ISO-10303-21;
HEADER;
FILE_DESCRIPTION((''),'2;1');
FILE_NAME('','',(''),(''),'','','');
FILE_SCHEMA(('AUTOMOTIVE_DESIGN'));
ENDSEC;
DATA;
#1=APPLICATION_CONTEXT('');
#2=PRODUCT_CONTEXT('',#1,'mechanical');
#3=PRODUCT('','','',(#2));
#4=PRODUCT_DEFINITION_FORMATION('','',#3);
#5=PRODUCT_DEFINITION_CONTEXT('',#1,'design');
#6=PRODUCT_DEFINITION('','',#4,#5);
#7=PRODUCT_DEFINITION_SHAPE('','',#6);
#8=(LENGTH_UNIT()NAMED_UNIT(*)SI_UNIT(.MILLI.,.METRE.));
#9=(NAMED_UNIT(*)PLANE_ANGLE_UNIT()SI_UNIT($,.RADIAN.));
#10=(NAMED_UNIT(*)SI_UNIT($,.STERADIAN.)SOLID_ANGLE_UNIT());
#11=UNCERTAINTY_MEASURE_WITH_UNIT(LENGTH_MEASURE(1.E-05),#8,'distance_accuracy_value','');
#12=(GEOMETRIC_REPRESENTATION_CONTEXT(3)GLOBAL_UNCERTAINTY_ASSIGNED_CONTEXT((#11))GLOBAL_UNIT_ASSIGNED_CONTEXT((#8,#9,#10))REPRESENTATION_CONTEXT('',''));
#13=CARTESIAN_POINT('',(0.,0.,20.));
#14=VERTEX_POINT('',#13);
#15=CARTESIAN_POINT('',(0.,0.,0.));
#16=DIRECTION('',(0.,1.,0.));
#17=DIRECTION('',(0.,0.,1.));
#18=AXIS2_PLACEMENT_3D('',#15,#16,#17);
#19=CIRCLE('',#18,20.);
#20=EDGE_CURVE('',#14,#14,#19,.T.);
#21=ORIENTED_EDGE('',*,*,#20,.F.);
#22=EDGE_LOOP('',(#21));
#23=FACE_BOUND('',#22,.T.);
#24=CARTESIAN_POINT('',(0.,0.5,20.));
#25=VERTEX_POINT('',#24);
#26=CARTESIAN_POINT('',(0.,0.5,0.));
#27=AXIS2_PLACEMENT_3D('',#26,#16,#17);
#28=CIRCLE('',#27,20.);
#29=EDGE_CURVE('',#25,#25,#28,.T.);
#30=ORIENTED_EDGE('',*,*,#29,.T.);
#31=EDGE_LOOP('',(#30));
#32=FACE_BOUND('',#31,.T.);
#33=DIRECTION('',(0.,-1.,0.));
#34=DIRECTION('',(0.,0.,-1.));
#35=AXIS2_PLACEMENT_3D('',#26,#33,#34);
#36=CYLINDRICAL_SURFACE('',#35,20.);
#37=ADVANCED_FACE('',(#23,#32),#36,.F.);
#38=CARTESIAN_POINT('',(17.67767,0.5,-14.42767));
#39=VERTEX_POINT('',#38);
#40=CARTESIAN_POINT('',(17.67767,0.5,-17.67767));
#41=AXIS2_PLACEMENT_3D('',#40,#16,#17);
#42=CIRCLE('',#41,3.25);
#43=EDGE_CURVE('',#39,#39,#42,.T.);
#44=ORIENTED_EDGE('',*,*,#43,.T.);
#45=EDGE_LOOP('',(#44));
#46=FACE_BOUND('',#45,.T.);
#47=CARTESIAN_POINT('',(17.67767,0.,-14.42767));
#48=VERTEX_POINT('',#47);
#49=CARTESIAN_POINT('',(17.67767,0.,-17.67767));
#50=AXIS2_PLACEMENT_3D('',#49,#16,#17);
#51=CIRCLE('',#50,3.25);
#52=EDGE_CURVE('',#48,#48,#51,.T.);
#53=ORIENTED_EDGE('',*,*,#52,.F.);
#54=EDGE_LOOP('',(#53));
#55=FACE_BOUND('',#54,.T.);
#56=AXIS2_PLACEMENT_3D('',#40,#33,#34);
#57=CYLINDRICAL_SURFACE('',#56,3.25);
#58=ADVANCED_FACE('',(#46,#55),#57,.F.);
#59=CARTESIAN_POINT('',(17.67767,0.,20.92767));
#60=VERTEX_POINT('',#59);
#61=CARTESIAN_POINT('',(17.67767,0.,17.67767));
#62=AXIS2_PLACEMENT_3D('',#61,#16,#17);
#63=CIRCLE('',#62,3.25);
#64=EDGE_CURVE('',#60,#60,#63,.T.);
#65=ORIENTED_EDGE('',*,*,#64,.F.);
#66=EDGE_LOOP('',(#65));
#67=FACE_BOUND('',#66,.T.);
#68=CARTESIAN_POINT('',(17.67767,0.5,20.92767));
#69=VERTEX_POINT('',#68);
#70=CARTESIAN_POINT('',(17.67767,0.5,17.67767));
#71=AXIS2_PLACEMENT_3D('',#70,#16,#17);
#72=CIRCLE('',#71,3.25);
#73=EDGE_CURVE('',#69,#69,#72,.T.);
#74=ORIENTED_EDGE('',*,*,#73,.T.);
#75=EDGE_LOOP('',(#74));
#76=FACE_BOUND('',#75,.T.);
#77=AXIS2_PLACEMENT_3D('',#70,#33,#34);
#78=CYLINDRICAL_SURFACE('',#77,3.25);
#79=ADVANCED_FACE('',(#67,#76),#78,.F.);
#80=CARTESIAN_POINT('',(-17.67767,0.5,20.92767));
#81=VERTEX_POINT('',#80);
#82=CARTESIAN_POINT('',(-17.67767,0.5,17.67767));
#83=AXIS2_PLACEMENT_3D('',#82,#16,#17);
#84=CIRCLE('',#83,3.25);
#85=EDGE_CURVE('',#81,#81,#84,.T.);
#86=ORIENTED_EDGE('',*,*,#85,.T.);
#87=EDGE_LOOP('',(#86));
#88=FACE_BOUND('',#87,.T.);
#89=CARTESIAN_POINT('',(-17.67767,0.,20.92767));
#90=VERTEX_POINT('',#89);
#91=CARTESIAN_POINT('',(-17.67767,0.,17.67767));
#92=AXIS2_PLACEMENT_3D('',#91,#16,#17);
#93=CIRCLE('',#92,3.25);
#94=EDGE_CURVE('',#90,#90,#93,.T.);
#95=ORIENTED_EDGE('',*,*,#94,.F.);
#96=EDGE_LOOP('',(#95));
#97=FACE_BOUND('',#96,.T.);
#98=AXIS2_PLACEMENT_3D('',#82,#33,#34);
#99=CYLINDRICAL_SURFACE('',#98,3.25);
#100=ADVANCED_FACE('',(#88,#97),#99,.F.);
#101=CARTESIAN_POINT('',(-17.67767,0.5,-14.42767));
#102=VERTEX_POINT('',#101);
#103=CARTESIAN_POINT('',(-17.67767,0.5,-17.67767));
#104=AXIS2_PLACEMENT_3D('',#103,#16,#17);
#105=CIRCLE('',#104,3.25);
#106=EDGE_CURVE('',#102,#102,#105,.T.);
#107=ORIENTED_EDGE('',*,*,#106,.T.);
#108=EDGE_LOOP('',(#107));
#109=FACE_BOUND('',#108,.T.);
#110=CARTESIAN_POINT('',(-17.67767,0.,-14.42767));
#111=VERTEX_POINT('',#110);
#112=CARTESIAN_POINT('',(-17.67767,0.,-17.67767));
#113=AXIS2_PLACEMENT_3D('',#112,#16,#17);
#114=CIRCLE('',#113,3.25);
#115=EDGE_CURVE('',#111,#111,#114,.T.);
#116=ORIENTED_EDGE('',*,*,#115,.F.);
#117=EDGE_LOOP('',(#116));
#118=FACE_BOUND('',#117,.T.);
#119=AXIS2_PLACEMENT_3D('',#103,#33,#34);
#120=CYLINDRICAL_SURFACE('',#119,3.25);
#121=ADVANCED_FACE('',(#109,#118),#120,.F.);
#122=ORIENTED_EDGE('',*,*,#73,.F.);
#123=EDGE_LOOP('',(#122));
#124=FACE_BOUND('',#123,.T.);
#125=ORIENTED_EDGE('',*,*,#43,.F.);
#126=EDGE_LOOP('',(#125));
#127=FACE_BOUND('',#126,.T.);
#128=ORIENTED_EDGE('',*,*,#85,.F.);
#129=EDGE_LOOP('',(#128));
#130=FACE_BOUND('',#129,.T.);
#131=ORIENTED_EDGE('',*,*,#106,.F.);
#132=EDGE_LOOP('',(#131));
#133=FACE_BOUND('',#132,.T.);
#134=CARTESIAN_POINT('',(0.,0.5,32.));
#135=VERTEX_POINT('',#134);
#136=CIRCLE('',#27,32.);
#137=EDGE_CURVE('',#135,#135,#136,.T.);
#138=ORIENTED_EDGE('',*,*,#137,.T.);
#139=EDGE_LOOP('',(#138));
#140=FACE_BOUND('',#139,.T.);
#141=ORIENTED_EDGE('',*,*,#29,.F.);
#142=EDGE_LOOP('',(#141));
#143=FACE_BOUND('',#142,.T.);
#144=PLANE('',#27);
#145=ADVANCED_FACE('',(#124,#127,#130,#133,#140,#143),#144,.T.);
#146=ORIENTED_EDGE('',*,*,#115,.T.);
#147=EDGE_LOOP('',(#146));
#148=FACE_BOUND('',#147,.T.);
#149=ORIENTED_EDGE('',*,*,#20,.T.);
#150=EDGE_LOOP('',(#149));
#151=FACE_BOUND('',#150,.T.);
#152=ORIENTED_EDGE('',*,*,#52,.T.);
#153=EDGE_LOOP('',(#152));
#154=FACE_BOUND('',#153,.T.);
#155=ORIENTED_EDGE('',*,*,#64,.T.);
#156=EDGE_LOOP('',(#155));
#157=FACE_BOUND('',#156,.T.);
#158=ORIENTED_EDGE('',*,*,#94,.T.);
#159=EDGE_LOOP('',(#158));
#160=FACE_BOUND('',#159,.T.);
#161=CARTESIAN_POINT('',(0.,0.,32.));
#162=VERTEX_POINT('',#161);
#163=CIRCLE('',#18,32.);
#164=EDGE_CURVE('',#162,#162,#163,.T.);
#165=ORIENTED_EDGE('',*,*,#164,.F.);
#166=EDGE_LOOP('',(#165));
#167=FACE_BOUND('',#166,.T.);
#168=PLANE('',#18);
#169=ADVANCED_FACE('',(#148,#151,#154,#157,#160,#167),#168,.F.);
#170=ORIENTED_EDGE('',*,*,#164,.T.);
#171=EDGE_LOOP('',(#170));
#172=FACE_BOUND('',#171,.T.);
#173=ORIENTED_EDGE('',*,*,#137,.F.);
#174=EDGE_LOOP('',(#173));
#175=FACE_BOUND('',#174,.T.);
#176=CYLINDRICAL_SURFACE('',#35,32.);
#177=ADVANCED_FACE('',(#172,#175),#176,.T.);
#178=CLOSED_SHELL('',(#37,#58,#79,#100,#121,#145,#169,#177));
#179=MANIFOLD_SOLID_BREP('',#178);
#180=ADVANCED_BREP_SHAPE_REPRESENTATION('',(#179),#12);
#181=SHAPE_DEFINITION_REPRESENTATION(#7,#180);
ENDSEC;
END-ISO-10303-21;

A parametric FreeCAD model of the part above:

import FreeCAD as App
import Part
import Sketcher
Q = App.Units.Quantity

doc = App.newDocument("Part")
body = doc.addObject("PartDesign::Body", "Body")

# Sketch on XZ plane
sketch1 = body.newObject("Sketcher::SketchObject", "Sketch")
sketch1.AttachmentSupport = (doc.getObject("XZ_Plane"), [""])
sketch1.MapMode = "FlatFace"
sketch1.addGeometry([
    Part.Circle(App.Vector(0, 0, 0), App.Vector(0, 0, 1), 32),  # 0
    Part.Circle(App.Vector(-17.7, -17.7, 0), App.Vector(0, 0, 1), 3.2),  # 1
    Part.Circle(App.Vector(-17.7, 17.7, 0), App.Vector(0, 0, 1), 3.2),  # 2
    Part.Circle(App.Vector(17.7, -17.7, 0), App.Vector(0, 0, 1), 3.2),  # 3
    Part.Circle(App.Vector(0, 0, 0), App.Vector(0, 0, 1), 20),  # 4
    Part.Circle(App.Vector(17.7, 17.7, 0), App.Vector(0, 0, 1), 3.2),  # 5
], False)
sketch1.addConstraint([
    Sketcher.Constraint("Coincident", 0, 3, -1, 1),
    Sketcher.Constraint("Coincident", 4, 3, -1, 1),
    Sketcher.Constraint("Equal", 1, 2),
    Sketcher.Constraint("Equal", 2, 3),
    Sketcher.Constraint("Equal", 3, 5),
    Sketcher.Constraint("Symmetric", 2, 3, 3, 3, -1, 1),
    Sketcher.Constraint("Symmetric", 1, 3, 5, 3, -1, 1),
    Sketcher.Constraint("Symmetric", 1, 3, 3, 3, -2),
    Sketcher.Constraint("Diameter", 0, Q("64 mm")),
    Sketcher.Constraint("Diameter", 4, Q("40 mm")),
    Sketcher.Constraint("Diameter", 1, Q("6.5 mm")),
    Sketcher.Constraint("DistanceX", 1, 3, -1, 1, Q("17.67767 mm")),
    Sketcher.Constraint("DistanceY", 1, 3, -1, 1, Q("17.67767 mm")),
])
pad1 = body.newObject("PartDesign::Pad", "Pad")
pad1.Profile = sketch1
pad1.Length = 0.5
pad1.Reversed = True

doc.recompute()
